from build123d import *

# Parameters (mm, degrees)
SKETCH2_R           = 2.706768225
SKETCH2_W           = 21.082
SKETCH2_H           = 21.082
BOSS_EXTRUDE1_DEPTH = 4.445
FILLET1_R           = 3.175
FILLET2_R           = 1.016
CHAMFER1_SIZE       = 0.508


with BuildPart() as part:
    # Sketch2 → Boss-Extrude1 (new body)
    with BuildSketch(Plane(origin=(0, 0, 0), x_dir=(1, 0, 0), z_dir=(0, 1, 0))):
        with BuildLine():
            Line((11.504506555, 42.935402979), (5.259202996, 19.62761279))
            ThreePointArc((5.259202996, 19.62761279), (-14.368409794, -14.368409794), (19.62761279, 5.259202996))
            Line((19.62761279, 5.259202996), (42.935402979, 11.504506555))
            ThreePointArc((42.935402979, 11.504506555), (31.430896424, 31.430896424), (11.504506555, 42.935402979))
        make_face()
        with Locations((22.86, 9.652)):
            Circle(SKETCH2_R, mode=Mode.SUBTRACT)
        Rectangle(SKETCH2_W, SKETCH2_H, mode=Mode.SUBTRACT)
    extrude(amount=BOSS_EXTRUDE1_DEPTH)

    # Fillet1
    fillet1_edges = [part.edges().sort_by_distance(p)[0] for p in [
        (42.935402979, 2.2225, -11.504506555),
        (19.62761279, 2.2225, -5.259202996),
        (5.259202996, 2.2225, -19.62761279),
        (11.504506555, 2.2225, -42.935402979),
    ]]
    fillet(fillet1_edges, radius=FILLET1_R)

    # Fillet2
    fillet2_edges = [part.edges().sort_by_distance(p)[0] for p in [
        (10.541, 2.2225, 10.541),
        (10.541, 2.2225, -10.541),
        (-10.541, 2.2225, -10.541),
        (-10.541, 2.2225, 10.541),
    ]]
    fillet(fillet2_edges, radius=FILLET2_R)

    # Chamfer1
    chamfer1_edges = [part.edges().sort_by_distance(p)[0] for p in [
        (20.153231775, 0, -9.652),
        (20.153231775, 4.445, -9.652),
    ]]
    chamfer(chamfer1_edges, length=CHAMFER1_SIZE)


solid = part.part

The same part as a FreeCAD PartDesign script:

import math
import FreeCAD as App
import Part
import Sketcher

V = App.Vector
Q = App.Units.Quantity


def edges_at(feature, points):
    """Names of the edges that pass closest to the given points."""
    edges = feature.Shape.Edges
    near = lambda p: min(range(len(edges)), key=lambda i: edges[i].distToShape(Part.Vertex(*p))[0])
    return sorted({f"Edge{near(p) + 1}" for p in points})

doc = App.newDocument("Part")
body = doc.addObject("PartDesign::Body", "Body")

# Sketch on XZ plane
sketch1 = body.newObject("Sketcher::SketchObject", "Sketch")
sketch1.AttachmentSupport = (doc.getObject("XZ_Plane"), [""])
sketch1.MapMode = "FlatFace"
sketch1.addGeometry(Part.LineSegment(V(11.5, -42.9, 0), V(5.3, -19.6, 0)), False)
sketch1.addGeometry(Part.ArcOfCircle(Part.Circle(V(0, 0, 0), V(0, 0, 1), 20.3), math.radians(-15), math.radians(285)), False)
sketch1.addGeometry(Part.LineSegment(V(19.6, -5.3, 0), V(42.9, -11.5, 0)), False)
sketch1.addGeometry(Part.ArcOfCircle(Part.Circle(V(0, 0, 0), V(0, 0, 1), 44.5), math.radians(-75), math.radians(-15)), False)
sketch1.addGeometry(Part.LineSegment(V(10.5, 10.5, 0), V(-10.5, 10.5, 0)), False)
sketch1.addGeometry(Part.LineSegment(V(-10.5, 10.5, 0), V(-10.5, -10.5, 0)), False)
sketch1.addGeometry(Part.LineSegment(V(-10.5, -10.5, 0), V(10.5, -10.5, 0)), False)
sketch1.addGeometry(Part.LineSegment(V(10.5, -10.5, 0), V(10.5, 10.5, 0)), False)
sketch1.addGeometry(Part.Circle(V(22.9, -9.7, 0), V(0, 0, 1), 2.7), False)
sketch1.addConstraint(Sketcher.Constraint("Coincident", 0, 2, 1, 2))
sketch1.addConstraint(Sketcher.Constraint("Coincident", 1, 1, 2, 1))
sketch1.addConstraint(Sketcher.Constraint("Coincident", 2, 2, 3, 2))
sketch1.addConstraint(Sketcher.Constraint("Coincident", 3, 1, 0, 1))
sketch1.addConstraint(Sketcher.Constraint("Coincident", 4, 2, 5, 1))
sketch1.addConstraint(Sketcher.Constraint("Coincident", 5, 2, 6, 1))
sketch1.addConstraint(Sketcher.Constraint("Coincident", 6, 2, 7, 1))
sketch1.addConstraint(Sketcher.Constraint("Coincident", 7, 2, 4, 1))
sketch1.addConstraint(Sketcher.Constraint("Horizontal", 4))
sketch1.addConstraint(Sketcher.Constraint("Vertical", 5))
sketch1.addConstraint(Sketcher.Constraint("Horizontal", 6))
sketch1.addConstraint(Sketcher.Constraint("Vertical", 7))
sketch1.addConstraint(Sketcher.Constraint("Coincident", 1, 3, -1, 1))
sketch1.addConstraint(Sketcher.Constraint("Coincident", 3, 3, -1, 1))
sketch1.addConstraint(Sketcher.Constraint("Symmetric", 4, 2, 6, 2, -1, 1))
sketch1.addConstraint(Sketcher.Constraint("Equal", 6, 5))
sketch1.addConstraint(Sketcher.Constraint("Radius", 1, Q("0.8 in")))
sketch1.addConstraint(Sketcher.Constraint("Radius", 3, Q("1.75 in")))
sketch1.addConstraint(Sketcher.Constraint("Angle", 0, Q("105 deg")))
sketch1.addConstraint(Sketcher.Constraint("Angle", 2, Q("-15 deg")))
sketch1.addConstraint(Sketcher.Constraint("DistanceX", 4, 2, 4, 1, Q("0.83 in")))
sketch1.addConstraint(Sketcher.Constraint("DistanceX", -1, 1, 8, 3, Q("0.9 in")))
sketch1.addConstraint(Sketcher.Constraint("DistanceY", 8, 3, -1, 1, Q("0.38 in")))
sketch1.addConstraint(Sketcher.Constraint("Diameter", 8, 5.413536))
sketch1.addConstraint(Sketcher.Constraint("DistanceX", 0, 2, 2, 2, 37.6762))
sketch1.addConstraint(Sketcher.Constraint("DistanceY", 3, 1, 1, 1, 37.6762))
pad1 = body.newObject("PartDesign::Pad", "Pad")
pad1.Profile = sketch1
pad1.Length = Q("0.175 in")
pad1.Reversed = True
doc.recompute()

fillet = body.newObject("PartDesign::Fillet", "Fillet")
fillet.Base = (pad1, edges_at(pad1, [
    (42.935, 2.223, -11.505),
    (19.628, 2.223, -5.259),
    (5.259, 2.223, -19.628),
    (11.505, 2.223, -42.935),
]))
fillet.Radius = Q("0.125 in")
doc.recompute()

fillet2 = body.newObject("PartDesign::Fillet", "Fillet001")
fillet2.Base = (fillet, edges_at(fillet, [
    (10.541, 2.223, 10.541),
    (10.541, 2.223, -10.541),
    (-10.541, 2.223, -10.541),
    (-10.541, 2.223, 10.541),
]))
fillet2.Radius = Q("0.04 in")
doc.recompute()

chamfer = body.newObject("PartDesign::Chamfer", "Chamfer")
chamfer.Base = (fillet2, edges_at(fillet2, [(20.153, 0, -9.652), (20.153, 4.445, -9.652)]))
chamfer.Size = Q("0.02 in")

doc.recompute()
